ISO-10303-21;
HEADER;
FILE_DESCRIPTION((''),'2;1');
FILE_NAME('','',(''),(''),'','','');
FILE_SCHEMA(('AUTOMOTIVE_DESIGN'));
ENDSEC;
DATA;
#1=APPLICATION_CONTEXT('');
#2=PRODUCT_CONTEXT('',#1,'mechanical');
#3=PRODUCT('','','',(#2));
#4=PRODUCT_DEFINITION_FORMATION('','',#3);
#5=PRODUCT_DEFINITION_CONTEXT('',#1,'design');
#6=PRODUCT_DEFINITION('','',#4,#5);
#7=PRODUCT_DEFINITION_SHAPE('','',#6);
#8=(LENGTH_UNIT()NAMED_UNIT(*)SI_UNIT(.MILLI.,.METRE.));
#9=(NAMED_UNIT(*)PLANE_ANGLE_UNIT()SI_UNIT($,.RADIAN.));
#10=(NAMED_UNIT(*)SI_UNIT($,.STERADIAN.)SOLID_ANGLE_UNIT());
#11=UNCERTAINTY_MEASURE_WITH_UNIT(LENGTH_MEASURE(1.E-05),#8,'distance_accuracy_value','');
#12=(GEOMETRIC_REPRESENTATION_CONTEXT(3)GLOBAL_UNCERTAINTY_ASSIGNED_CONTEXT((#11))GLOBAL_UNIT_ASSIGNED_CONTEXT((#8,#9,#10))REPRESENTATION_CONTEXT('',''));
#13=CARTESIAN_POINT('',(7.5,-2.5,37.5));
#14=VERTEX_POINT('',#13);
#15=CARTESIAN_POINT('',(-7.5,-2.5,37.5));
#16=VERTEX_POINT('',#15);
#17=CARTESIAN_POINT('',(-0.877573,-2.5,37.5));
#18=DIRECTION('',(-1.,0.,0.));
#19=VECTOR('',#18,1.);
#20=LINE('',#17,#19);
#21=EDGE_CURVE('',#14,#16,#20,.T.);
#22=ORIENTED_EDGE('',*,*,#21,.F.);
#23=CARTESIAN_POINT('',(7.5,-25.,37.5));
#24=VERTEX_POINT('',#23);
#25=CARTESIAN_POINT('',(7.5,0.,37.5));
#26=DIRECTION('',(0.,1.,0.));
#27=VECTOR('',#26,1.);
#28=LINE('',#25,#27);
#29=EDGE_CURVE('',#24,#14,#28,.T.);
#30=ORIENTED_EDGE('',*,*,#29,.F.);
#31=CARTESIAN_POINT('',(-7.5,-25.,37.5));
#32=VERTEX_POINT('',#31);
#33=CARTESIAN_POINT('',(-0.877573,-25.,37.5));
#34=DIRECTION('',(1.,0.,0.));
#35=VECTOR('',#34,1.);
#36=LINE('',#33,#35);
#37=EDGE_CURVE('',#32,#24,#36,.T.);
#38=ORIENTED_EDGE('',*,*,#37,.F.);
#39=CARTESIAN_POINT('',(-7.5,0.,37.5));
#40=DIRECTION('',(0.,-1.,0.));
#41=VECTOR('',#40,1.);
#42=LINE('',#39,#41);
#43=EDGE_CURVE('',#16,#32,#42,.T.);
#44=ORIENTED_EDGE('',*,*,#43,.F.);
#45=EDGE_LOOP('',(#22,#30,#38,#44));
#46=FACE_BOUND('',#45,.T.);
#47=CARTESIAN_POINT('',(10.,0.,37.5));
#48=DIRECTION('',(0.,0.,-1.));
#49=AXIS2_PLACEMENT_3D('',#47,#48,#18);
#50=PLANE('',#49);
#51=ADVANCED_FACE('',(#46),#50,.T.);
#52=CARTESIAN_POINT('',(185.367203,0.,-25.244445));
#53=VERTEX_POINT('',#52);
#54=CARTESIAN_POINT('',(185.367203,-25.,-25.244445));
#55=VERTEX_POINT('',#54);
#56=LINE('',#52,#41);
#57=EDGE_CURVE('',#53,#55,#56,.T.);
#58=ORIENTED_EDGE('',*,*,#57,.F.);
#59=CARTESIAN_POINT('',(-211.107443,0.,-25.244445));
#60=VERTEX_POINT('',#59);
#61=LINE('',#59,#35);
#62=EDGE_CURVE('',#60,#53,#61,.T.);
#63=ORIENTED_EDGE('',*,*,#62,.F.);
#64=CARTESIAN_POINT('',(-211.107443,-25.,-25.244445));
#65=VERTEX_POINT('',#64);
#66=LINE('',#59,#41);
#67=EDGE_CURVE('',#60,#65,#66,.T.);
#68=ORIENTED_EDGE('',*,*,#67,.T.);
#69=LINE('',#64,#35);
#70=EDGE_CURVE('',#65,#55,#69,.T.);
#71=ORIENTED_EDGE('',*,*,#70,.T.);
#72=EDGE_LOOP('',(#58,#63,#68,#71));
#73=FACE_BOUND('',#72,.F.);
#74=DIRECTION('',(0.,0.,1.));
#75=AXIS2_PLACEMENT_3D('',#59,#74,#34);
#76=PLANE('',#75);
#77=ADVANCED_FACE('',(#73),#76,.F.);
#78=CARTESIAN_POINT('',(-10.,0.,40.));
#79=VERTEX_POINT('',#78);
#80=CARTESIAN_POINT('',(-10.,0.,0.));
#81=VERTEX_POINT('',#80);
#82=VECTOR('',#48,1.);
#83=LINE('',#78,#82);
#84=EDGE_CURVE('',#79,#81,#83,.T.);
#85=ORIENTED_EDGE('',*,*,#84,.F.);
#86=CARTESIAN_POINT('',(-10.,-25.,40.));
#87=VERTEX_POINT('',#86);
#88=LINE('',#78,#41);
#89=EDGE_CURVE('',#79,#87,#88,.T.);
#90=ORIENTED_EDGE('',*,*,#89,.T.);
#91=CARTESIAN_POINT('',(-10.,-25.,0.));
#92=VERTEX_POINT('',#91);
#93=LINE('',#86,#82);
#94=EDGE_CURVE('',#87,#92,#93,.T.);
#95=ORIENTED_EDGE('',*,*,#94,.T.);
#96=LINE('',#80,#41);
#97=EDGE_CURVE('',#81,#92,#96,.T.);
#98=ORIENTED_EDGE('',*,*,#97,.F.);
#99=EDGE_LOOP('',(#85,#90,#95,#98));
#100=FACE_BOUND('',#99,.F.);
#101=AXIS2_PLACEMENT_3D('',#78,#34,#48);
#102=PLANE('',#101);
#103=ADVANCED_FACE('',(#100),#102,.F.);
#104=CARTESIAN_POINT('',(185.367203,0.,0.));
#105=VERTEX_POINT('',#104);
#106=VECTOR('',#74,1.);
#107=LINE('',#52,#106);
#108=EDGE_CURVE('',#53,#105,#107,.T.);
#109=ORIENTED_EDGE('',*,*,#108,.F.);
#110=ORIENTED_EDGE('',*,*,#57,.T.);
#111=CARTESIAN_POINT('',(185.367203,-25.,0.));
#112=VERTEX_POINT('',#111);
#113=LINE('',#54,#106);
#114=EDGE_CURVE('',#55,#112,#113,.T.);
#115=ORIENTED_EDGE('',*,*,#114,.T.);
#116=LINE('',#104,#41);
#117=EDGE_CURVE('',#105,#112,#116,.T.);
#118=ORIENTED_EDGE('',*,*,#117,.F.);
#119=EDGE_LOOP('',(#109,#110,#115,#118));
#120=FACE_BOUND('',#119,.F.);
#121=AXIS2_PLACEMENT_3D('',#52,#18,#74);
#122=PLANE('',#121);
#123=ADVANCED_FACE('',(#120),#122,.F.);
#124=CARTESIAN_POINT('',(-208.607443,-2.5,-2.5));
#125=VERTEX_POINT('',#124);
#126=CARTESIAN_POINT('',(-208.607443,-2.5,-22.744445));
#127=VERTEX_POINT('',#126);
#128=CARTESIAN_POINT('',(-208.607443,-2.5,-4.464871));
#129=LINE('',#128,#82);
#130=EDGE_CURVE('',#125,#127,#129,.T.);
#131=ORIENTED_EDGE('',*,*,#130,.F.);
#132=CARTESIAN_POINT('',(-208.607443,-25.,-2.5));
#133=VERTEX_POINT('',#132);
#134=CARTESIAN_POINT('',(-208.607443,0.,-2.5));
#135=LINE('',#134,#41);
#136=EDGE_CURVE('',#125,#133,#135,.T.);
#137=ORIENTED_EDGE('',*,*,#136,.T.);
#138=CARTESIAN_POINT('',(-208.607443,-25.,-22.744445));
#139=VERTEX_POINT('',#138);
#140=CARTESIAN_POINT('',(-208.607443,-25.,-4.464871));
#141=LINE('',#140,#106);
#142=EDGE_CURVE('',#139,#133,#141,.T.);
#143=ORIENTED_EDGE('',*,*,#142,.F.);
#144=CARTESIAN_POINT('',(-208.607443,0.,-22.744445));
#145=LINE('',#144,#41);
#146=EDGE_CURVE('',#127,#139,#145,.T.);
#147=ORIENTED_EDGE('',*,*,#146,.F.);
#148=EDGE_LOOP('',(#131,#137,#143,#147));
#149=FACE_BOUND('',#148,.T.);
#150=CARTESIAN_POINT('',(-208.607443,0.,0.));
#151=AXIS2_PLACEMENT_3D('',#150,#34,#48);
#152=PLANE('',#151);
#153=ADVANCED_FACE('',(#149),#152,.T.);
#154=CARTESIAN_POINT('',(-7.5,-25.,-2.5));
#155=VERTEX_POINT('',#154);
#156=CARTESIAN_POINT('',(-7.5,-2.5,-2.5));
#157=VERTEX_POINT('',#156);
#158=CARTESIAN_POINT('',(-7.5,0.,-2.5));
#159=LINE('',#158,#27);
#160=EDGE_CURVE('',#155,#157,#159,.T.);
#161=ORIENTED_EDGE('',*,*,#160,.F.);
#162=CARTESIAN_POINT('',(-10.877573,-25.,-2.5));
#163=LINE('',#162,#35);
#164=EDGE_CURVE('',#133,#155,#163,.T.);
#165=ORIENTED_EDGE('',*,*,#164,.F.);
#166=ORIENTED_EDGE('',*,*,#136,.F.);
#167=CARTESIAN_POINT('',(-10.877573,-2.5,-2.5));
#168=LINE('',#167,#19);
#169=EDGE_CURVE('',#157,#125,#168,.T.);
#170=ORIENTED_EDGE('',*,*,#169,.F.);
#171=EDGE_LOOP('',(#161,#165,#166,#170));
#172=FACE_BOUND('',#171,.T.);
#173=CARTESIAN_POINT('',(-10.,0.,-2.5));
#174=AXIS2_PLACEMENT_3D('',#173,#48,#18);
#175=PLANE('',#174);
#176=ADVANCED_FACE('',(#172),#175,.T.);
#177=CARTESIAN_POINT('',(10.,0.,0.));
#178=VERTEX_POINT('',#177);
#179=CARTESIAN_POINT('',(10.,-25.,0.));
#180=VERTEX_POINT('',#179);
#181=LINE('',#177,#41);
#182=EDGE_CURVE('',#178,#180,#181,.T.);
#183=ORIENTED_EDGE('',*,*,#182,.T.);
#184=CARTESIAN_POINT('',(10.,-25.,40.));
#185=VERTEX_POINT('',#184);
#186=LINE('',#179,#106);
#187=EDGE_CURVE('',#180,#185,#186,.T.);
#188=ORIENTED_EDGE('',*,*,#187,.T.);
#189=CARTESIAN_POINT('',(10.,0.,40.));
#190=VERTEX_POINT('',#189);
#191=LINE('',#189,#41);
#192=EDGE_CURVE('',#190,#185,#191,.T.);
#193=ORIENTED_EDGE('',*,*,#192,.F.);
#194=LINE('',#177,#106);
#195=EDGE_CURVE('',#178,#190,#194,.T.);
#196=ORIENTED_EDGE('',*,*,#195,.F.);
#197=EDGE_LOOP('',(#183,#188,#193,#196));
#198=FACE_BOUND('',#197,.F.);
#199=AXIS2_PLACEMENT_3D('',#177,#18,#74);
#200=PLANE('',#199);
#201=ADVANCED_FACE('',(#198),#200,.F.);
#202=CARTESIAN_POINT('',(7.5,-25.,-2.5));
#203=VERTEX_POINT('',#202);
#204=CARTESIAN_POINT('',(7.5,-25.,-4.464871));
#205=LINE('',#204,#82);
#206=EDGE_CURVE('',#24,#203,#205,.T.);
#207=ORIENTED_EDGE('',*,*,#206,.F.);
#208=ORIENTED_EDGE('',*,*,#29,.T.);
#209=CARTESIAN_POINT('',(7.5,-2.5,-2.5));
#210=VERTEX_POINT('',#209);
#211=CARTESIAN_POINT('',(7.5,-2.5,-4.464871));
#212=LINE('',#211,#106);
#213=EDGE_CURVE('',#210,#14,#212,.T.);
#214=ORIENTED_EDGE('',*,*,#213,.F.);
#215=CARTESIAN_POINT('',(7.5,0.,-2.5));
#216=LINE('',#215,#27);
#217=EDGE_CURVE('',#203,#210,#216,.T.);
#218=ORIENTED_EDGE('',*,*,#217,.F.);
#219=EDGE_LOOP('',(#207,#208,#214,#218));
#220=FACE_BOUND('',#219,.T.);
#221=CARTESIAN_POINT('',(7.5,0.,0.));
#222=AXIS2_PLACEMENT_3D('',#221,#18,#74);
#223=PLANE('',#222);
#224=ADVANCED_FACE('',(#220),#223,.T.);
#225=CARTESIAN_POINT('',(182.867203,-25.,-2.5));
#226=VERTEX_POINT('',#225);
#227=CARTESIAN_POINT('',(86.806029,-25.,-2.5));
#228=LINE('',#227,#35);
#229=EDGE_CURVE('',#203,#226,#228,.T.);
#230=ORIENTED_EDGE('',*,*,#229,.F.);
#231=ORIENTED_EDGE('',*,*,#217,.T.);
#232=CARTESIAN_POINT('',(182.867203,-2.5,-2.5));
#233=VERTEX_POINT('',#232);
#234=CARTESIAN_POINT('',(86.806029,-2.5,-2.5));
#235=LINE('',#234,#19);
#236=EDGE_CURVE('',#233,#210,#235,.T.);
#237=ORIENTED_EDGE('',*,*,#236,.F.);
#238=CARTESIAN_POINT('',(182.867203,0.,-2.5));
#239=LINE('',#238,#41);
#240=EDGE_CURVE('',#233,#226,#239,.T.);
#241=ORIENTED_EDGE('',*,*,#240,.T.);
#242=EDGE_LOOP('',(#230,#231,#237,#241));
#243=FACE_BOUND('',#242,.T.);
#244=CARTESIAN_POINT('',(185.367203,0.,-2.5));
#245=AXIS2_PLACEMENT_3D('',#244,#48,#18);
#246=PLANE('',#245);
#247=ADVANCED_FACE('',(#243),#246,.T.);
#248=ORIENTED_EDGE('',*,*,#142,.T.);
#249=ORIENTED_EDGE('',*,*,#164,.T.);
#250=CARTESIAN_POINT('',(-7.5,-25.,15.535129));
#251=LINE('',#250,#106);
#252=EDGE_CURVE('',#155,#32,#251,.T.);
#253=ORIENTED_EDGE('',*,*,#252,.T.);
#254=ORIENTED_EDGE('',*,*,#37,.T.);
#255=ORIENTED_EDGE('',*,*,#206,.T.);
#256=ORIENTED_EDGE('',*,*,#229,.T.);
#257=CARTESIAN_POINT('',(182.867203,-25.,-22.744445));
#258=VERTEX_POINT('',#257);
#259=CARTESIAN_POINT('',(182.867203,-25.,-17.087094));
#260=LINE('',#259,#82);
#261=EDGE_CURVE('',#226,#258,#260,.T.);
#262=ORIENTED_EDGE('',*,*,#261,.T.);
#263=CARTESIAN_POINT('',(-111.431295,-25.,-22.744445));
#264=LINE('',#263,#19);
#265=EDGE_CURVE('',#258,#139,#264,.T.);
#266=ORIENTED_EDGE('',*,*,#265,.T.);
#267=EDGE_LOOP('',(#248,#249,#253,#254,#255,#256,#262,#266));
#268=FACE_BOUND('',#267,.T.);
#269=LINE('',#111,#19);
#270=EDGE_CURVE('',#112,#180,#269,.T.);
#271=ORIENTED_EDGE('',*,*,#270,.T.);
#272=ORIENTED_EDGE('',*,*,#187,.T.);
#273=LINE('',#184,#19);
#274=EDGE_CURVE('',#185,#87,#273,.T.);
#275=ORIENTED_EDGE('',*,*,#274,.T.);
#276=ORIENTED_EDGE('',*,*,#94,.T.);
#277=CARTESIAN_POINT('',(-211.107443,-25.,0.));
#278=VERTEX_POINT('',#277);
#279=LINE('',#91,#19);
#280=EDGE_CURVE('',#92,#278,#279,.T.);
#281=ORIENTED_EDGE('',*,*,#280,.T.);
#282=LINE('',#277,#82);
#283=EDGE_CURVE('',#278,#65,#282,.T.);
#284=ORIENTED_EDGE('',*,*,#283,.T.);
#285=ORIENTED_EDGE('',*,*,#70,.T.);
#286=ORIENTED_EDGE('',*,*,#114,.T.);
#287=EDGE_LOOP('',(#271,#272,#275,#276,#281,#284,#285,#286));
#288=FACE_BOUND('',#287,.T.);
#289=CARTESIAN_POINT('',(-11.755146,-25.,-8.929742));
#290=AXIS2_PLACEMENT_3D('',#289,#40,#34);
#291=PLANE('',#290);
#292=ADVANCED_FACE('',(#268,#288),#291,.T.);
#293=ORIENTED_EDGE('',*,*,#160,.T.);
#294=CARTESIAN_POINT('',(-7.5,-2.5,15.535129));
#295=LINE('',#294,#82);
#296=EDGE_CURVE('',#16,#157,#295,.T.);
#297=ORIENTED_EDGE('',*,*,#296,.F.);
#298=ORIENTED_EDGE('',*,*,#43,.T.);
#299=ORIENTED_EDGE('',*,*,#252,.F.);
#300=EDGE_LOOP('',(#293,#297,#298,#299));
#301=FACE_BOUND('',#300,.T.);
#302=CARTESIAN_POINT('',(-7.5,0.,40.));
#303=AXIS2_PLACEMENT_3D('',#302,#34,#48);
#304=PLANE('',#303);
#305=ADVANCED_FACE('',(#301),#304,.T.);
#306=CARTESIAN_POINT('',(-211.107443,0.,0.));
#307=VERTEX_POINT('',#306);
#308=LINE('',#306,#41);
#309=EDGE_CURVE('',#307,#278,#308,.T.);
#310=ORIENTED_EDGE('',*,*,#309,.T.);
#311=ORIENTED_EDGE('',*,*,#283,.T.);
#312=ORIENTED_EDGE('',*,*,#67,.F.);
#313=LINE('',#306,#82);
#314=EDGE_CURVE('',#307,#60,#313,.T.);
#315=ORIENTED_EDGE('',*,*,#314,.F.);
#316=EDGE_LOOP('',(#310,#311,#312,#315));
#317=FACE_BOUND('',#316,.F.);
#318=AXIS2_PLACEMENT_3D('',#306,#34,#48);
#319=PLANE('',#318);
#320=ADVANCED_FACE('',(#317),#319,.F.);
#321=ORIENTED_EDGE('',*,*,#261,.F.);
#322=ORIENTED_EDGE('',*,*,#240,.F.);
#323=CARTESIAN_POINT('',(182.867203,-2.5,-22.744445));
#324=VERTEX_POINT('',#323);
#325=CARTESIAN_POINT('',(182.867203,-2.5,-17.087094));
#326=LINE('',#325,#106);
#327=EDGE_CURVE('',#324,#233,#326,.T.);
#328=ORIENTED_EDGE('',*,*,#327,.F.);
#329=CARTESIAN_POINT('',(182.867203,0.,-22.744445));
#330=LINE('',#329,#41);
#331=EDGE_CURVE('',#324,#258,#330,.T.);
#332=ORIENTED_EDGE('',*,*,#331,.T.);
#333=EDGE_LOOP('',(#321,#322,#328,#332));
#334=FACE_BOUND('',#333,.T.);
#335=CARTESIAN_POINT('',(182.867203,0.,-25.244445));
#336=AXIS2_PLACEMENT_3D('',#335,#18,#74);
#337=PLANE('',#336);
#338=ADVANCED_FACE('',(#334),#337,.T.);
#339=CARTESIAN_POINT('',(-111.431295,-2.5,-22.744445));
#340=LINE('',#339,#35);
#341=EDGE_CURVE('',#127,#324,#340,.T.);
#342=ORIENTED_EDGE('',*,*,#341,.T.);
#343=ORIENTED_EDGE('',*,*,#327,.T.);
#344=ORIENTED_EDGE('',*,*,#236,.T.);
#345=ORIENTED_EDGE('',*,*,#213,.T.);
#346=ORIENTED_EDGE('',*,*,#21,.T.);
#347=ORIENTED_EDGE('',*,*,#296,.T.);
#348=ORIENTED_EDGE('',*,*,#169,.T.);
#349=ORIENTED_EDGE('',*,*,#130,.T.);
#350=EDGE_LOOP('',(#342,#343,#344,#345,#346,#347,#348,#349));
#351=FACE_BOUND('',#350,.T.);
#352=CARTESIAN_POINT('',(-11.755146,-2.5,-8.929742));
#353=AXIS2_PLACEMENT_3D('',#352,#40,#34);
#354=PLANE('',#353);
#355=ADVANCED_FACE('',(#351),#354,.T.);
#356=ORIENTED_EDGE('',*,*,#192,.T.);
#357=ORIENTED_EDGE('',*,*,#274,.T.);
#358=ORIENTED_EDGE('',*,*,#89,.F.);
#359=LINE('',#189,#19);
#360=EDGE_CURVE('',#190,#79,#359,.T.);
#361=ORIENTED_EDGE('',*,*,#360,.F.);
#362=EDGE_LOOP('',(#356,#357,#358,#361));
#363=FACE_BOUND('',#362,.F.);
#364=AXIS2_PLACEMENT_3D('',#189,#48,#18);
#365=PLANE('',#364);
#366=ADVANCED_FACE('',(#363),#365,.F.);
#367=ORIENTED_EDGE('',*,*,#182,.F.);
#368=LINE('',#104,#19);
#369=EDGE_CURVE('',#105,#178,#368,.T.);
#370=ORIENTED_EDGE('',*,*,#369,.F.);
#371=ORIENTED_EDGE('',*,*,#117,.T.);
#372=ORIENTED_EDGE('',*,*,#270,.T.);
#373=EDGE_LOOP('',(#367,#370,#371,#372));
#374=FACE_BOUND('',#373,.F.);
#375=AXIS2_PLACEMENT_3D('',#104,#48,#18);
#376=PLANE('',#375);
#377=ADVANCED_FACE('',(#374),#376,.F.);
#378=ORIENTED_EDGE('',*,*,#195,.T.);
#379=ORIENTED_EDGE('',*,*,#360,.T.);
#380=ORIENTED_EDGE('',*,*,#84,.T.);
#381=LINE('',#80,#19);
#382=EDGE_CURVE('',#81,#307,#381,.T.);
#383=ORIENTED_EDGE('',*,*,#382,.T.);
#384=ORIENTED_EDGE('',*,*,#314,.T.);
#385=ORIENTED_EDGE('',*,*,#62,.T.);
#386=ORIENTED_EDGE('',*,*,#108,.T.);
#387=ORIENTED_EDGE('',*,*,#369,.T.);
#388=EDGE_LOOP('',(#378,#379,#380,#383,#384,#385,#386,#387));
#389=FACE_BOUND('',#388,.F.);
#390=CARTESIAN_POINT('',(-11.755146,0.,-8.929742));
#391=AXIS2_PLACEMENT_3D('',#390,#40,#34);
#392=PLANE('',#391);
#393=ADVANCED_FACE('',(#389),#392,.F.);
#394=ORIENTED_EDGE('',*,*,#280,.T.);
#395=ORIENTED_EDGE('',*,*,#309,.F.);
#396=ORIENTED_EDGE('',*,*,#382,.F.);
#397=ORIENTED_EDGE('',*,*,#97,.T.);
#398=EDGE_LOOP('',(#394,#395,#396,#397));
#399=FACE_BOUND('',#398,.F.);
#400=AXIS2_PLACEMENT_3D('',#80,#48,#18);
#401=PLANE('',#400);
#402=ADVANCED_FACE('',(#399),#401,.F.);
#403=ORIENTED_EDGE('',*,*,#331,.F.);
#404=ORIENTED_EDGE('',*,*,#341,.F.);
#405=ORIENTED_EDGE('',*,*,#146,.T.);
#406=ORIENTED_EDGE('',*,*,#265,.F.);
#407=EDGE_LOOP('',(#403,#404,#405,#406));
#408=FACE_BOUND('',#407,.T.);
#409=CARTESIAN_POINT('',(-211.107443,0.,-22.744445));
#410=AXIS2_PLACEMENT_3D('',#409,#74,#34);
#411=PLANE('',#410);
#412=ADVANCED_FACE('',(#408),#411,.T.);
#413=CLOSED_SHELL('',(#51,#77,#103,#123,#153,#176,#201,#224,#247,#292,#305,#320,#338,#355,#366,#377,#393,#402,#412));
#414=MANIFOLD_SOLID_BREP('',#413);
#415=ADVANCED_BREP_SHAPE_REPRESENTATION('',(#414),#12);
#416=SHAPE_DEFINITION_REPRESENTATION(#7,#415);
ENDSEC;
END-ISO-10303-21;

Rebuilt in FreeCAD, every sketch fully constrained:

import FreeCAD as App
import Part
import Sketcher


def faces_at(feature, points):
    """Names of the faces that lie closest to the given points."""
    faces = feature.Shape.Faces
    near = lambda p: min(range(len(faces)), key=lambda i: faces[i].distToShape(Part.Vertex(*p))[0])
    return sorted({f"Face{near(p) + 1}" for p in points})

doc = App.newDocument("Part")
body = doc.addObject("PartDesign::Body", "Body")

# Sketch on XZ plane
sketch1 = doc.addObject("Sketcher::SketchObject", "Sketch")
body.addObject(sketch1)
sketch1.AttachmentSupport = (doc.XZ_Plane, [""])
sketch1.MapMode = "FlatFace"
sketch1.addGeometry(Part.LineSegment(App.Vector(10, 40, 0), App.Vector(-10, 40, 0)), False)
sketch1.addGeometry(Part.LineSegment(App.Vector(-10, 40, 0), App.Vector(-10, 0, 0)), False)
sketch1.addGeometry(Part.LineSegment(App.Vector(-10, 0, 0), App.Vector(-211, 0, 0)), False)
sketch1.addGeometry(Part.LineSegment(App.Vector(-211, 0, 0), App.Vector(-211, -25, 0)), False)
sketch1.addGeometry(Part.LineSegment(App.Vector(-211, -25, 0), App.Vector(185, -25, 0)), False)
sketch1.addGeometry(Part.LineSegment(App.Vector(185, -25, 0), App.Vector(185, 0, 0)), False)
sketch1.addGeometry(Part.LineSegment(App.Vector(185, 0, 0), App.Vector(10, 0, 0)), False)
sketch1.addGeometry(Part.LineSegment(App.Vector(10, 0, 0), App.Vector(10, 40, 0)), False)
sketch1.addConstraint(Sketcher.Constraint("Coincident", 0, 2, 1, 1))
sketch1.addConstraint(Sketcher.Constraint("Coincident", 1, 2, 2, 1))
sketch1.addConstraint(Sketcher.Constraint("Coincident", 2, 2, 3, 1))
sketch1.addConstraint(Sketcher.Constraint("Coincident", 3, 2, 4, 1))
sketch1.addConstraint(Sketcher.Constraint("Coincident", 4, 2, 5, 1))
sketch1.addConstraint(Sketcher.Constraint("Coincident", 5, 2, 6, 1))
sketch1.addConstraint(Sketcher.Constraint("Coincident", 6, 2, 7, 1))
sketch1.addConstraint(Sketcher.Constraint("Coincident", 7, 2, 0, 1))
sketch1.addConstraint(Sketcher.Constraint("Horizontal", 0))
sketch1.addConstraint(Sketcher.Constraint("Vertical", 1))
sketch1.addConstraint(Sketcher.Constraint("Horizontal", 2))
sketch1.addConstraint(Sketcher.Constraint("Vertical", 3))
sketch1.addConstraint(Sketcher.Constraint("Horizontal", 4))
sketch1.addConstraint(Sketcher.Constraint("Vertical", 5))
sketch1.addConstraint(Sketcher.Constraint("Horizontal", 6))
sketch1.addConstraint(Sketcher.Constraint("Vertical", 7))
sketch1.addConstraint(Sketcher.Constraint("Symmetric", 1, 2, 6, 2, -1, 1))
sketch1.addConstraint(Sketcher.Constraint("PointOnObject", 1, 2, -1))
sketch1.addConstraint(Sketcher.Constraint("DistanceX", 0, 2, 0, 1, 20.0))
sketch1.addConstraint(Sketcher.Constraint("DistanceY", 1, 2, 1, 1, 40.0))
sketch1.addConstraint(Sketcher.Constraint("DistanceX", 2, 2, 2, 1, 201.107443))
sketch1.addConstraint(Sketcher.Constraint("DistanceX", 4, 1, 4, 2, 396.474647))
sketch1.addConstraint(Sketcher.Constraint("DistanceY", 3, 2, 3, 1, 25.244445))
pad1 = doc.addObject("PartDesign::Pad", "Pad")
body.addObject(pad1)
pad1.Profile = sketch1
pad1.Length = 25
doc.recompute()

thickness = doc.addObject("PartDesign::Thickness", "Thickness")
body.addObject(thickness)
thickness.Base = (pad1, faces_at(pad1, [(-92.165, -25, -5.671)]))
thickness.Value = 2.5
thickness.Reversed = True
thickness.Join = "Intersection"

doc.recompute()
